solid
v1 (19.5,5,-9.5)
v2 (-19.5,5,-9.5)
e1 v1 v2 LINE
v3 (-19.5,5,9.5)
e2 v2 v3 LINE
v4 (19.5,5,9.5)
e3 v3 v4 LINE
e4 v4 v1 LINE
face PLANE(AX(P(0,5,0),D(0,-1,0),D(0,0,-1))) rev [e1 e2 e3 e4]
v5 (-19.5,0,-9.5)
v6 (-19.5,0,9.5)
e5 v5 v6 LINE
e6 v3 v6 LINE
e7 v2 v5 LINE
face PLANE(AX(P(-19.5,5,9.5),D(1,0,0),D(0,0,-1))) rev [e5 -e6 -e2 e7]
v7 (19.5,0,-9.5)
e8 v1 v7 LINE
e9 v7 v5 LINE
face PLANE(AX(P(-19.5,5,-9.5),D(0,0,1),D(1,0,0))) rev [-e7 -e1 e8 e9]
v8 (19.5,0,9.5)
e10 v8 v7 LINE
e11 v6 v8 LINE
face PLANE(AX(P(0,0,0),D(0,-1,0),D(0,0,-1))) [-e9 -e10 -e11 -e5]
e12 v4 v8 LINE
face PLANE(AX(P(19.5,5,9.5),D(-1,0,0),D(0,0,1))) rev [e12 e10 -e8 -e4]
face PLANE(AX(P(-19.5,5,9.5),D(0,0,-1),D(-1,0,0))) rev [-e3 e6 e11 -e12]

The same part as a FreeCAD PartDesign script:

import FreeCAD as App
import Part
import Sketcher

V = App.Vector


def add_polygon(sketch, points):
    """Adds a closed chain of lines whose ends are joined by coincident constraints."""
    first, n = sketch.GeometryCount, len(points)
    for a, b in zip(points, points[1:] + points[:1]):
        sketch.addGeometry(Part.LineSegment(App.Vector(*a, 0), App.Vector(*b, 0)), False)
    for i in range(n):
        sketch.addConstraint(Sketcher.Constraint("Coincident", first + i, 2, first + (i + 1) % n, 1))

doc = App.newDocument("Part")
body = doc.addObject("PartDesign::Body", "Body")

# Sketch on XZ plane
sketch1 = body.newObject("Sketcher::SketchObject", "Sketch")
sketch1.AttachmentSupport = (doc.getObject("XZ_Plane"), [""])
sketch1.MapMode = "FlatFace"
add_polygon(sketch1, [(-20, -10), (-20, 10), (20, 10), (20, -10)])  # lines 0-3
sketch1.addConstraint([
    Sketcher.Constraint("Vertical", 0),
    Sketcher.Constraint("Horizontal", 1),
    Sketcher.Constraint("Vertical", 2),
    Sketcher.Constraint("Horizontal", 3),
    Sketcher.Constraint("Symmetric", 0, 2, 2, 2, -1, 1),
    Sketcher.Constraint("DistanceX", 1, 1, 1, 2, 39.0),
    Sketcher.Constraint("DistanceY", 0, 1, 0, 2, 19.0),
])
pad1 = body.newObject("PartDesign::Pad", "Pad")
pad1.Profile = sketch1
pad1.Length = 5
pad1.Reversed = True

doc.recompute()
